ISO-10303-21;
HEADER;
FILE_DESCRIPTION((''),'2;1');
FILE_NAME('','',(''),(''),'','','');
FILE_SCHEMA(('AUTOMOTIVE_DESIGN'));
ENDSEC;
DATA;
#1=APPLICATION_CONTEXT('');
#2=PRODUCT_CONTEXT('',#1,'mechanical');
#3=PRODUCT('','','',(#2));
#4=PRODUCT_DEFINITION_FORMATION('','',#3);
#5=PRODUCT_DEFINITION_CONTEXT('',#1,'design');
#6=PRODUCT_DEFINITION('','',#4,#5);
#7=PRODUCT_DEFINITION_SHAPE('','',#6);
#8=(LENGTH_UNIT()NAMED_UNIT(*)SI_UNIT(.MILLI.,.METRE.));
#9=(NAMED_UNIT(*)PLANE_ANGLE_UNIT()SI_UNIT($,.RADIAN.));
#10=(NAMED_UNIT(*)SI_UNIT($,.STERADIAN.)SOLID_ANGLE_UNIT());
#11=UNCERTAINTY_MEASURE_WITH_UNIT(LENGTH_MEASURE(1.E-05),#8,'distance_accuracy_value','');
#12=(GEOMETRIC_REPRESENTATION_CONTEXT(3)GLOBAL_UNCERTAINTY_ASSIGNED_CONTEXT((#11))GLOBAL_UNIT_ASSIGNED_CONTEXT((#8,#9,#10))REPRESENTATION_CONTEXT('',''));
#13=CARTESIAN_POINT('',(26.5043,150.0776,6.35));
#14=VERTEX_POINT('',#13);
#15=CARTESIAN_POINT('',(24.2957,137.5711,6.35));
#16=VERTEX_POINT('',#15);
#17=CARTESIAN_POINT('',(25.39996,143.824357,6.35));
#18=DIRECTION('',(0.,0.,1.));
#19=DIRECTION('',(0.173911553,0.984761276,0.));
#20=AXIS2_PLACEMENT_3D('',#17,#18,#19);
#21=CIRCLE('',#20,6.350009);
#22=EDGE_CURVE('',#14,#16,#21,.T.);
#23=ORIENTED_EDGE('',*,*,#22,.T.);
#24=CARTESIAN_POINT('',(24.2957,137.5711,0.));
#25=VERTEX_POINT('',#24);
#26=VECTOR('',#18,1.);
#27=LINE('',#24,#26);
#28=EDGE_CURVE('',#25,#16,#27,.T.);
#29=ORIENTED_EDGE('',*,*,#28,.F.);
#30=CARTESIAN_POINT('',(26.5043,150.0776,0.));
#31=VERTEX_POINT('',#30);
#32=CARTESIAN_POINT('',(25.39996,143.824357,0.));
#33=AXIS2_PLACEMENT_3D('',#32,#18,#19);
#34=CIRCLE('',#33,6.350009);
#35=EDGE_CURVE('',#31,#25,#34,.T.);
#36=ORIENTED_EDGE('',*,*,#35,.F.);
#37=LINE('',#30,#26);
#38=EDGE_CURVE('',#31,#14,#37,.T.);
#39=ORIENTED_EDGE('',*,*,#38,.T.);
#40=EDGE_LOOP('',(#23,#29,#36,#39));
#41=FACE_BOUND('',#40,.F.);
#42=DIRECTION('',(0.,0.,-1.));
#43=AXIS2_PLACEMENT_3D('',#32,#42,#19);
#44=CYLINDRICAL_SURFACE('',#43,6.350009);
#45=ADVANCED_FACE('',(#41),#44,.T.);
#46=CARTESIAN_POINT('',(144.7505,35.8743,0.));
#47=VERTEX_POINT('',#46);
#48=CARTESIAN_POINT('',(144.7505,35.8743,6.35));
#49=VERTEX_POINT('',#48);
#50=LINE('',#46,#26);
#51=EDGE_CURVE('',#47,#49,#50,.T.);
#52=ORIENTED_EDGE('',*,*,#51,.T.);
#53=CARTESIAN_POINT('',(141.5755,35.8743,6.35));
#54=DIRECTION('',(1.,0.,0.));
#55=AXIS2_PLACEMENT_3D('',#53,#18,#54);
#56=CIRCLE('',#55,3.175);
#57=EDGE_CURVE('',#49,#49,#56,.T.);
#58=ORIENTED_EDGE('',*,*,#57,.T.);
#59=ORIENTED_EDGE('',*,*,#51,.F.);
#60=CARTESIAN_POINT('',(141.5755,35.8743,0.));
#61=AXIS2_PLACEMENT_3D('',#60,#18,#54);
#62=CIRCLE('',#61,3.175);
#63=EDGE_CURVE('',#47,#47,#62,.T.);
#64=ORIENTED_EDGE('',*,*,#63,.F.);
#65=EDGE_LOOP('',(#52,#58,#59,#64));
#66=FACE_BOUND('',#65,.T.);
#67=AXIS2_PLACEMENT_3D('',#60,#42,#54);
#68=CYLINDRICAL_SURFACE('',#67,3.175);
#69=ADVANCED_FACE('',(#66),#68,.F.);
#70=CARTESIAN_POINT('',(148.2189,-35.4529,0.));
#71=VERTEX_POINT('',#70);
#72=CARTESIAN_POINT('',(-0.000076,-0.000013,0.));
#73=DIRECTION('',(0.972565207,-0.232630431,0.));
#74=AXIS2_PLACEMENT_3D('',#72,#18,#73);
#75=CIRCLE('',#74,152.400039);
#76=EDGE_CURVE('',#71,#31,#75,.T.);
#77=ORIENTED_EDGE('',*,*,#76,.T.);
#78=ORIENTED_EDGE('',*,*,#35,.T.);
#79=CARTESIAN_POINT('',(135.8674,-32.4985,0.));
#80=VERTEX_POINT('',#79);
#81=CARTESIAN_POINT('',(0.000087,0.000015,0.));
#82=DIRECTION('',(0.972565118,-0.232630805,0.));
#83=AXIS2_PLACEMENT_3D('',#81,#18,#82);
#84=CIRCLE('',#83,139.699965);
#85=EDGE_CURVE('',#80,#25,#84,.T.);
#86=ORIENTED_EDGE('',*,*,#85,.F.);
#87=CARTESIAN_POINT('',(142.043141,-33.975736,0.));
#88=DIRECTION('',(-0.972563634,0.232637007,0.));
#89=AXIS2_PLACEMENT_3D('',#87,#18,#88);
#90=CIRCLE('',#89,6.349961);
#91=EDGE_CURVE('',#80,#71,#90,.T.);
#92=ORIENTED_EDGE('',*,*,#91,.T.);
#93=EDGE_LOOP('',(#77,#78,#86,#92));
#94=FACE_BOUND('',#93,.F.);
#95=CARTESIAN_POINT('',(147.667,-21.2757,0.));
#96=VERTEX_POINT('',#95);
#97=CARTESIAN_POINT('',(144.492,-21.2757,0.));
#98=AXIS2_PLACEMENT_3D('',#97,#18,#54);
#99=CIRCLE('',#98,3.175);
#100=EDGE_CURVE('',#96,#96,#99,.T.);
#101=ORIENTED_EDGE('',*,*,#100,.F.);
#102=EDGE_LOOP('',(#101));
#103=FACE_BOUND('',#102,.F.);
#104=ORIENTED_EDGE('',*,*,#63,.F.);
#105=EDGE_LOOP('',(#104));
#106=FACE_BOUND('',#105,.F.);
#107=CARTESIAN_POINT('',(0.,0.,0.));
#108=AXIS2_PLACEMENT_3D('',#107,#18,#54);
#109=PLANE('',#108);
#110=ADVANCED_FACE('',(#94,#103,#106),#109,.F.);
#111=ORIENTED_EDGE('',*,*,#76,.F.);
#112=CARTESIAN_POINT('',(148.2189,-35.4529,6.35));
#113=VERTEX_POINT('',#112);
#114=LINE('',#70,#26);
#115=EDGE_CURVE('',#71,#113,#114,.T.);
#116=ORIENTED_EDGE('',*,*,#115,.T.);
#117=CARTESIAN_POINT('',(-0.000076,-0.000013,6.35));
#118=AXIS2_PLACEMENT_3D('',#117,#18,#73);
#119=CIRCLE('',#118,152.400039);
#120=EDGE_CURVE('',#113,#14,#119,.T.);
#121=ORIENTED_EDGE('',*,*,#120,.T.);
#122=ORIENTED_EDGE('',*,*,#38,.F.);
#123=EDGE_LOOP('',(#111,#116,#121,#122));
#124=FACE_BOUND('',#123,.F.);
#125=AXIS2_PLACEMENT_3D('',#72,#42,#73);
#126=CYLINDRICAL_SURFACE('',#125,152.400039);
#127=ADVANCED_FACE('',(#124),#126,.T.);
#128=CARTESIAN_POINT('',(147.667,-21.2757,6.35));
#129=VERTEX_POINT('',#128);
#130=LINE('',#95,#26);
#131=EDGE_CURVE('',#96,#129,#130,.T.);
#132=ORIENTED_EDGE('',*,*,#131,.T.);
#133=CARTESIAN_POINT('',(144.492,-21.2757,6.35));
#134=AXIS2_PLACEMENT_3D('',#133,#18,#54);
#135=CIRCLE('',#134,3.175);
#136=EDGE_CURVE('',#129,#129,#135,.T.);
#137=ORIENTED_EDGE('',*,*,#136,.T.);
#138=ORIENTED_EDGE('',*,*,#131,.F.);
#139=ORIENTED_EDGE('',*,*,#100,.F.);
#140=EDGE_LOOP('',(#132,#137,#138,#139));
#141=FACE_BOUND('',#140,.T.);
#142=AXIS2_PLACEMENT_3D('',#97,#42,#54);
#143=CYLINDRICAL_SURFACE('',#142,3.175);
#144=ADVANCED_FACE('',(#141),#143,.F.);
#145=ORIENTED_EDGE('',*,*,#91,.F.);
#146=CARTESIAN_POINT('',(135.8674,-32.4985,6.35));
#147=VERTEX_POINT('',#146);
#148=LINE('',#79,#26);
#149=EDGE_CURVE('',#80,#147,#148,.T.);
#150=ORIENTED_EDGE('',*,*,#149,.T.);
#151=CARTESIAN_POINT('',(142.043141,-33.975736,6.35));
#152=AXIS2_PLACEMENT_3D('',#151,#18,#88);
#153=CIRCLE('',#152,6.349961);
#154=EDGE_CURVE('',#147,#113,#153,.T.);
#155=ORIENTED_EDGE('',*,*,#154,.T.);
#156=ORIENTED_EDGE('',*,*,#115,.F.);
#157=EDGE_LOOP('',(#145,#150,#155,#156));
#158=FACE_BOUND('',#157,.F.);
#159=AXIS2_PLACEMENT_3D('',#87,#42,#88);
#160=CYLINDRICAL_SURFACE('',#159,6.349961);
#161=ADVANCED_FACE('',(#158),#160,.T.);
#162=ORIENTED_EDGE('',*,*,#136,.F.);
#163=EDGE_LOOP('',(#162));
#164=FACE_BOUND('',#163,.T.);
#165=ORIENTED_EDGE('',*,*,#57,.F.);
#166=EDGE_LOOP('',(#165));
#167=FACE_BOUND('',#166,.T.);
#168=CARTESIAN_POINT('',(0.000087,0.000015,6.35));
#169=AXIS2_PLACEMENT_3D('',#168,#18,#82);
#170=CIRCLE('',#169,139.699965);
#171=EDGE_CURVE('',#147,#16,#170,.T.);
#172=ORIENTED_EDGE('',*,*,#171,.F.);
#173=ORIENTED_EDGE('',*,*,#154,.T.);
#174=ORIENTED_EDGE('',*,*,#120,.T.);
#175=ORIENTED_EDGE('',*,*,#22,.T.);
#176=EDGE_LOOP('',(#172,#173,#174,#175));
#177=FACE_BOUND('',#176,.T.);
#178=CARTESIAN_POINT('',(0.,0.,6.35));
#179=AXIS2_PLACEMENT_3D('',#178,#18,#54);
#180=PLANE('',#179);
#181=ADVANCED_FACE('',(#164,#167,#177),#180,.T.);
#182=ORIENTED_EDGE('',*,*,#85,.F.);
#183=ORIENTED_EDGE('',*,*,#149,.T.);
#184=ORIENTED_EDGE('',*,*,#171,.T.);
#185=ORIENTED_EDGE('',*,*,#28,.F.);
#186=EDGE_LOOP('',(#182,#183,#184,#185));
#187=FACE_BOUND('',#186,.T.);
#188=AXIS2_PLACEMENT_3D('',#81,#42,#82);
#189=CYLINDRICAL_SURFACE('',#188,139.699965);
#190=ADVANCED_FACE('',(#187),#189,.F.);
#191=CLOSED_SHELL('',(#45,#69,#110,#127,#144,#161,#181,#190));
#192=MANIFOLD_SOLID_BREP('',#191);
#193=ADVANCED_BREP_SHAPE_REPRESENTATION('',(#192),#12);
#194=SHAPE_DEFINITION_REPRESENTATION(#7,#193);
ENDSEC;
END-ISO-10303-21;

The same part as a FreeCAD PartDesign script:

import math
import FreeCAD as App
import Part
import Sketcher
Q = App.Units.Quantity

doc = App.newDocument("Part")
body = doc.addObject("PartDesign::Body", "Body")

sketch1 = body.newObject("Sketcher::SketchObject", "Sketch")
sketch1.AttachmentSupport = (doc.getObject("XY_Plane"), [""])
sketch1.MapMode = "FlatFace"
sketch1.addGeometry([
    Part.ArcOfCircle(Part.Circle(App.Vector(0, 0, 0), App.Vector(0, 0, 1), 139.7), math.radians(-13), math.radians(80)),
    Part.ArcOfCircle(Part.Circle(App.Vector(142, -34, 0), App.Vector(0, 0, 1), 6.4), math.radians(167), math.radians(347)),
    Part.ArcOfCircle(Part.Circle(App.Vector(0, 0, 0), App.Vector(0, 0, 1), 152.4), math.radians(-13), math.radians(80)),
    Part.ArcOfCircle(Part.Circle(App.Vector(25.4, 143.8, 0), App.Vector(0, 0, 1), 6.4), math.radians(80), math.radians(260)),
    Part.Circle(App.Vector(144.5, -21.3, 0), App.Vector(0, 0, 1), 3.2),
    Part.Circle(App.Vector(141.6, 35.9, 0), App.Vector(0, 0, 1), 3.2),
], False)
sketch1.addConstraint([
    Sketcher.Constraint("Tangent", 0, 1, 1, 1),
    Sketcher.Constraint("Tangent", 1, 2, 2, 1),
    Sketcher.Constraint("Tangent", 2, 2, 3, 1),
    Sketcher.Constraint("Tangent", 3, 2, 0, 2),
    Sketcher.Constraint("Coincident", 0, 3, -1, 1),
    Sketcher.Constraint("Coincident", 2, 3, -1, 1),
    Sketcher.Constraint("Equal", 4, 5),
    Sketcher.Constraint("Radius", 2, Q("6 in")),
    Sketcher.Constraint("Radius", 0, Q("5.5 in")),
    Sketcher.Constraint("Diameter", 4, Q("0.25 in")),
    Sketcher.Constraint("DistanceX", -1, 1, 3, 3, Q("1 in")),
    Sketcher.Constraint("DistanceY", 1, 3, 3, 3, Q("7 in")),
    Sketcher.Constraint("DistanceY", 1, 3, 4, 3, Q("0.5 in")),
    Sketcher.Constraint("DistanceY", 4, 3, 5, 3, Q("2.25 in")),
    Sketcher.Constraint("DistanceX", 1, 3, 4, 3, Q("0.0964 in")),
    Sketcher.Constraint("DistanceX", -1, 1, 5, 3, Q("141.5755 mm")),
])
pad1 = body.newObject("PartDesign::Pad", "Pad")
pad1.Profile = sketch1
pad1.Length = Q("0.25 in")

doc.recompute()
